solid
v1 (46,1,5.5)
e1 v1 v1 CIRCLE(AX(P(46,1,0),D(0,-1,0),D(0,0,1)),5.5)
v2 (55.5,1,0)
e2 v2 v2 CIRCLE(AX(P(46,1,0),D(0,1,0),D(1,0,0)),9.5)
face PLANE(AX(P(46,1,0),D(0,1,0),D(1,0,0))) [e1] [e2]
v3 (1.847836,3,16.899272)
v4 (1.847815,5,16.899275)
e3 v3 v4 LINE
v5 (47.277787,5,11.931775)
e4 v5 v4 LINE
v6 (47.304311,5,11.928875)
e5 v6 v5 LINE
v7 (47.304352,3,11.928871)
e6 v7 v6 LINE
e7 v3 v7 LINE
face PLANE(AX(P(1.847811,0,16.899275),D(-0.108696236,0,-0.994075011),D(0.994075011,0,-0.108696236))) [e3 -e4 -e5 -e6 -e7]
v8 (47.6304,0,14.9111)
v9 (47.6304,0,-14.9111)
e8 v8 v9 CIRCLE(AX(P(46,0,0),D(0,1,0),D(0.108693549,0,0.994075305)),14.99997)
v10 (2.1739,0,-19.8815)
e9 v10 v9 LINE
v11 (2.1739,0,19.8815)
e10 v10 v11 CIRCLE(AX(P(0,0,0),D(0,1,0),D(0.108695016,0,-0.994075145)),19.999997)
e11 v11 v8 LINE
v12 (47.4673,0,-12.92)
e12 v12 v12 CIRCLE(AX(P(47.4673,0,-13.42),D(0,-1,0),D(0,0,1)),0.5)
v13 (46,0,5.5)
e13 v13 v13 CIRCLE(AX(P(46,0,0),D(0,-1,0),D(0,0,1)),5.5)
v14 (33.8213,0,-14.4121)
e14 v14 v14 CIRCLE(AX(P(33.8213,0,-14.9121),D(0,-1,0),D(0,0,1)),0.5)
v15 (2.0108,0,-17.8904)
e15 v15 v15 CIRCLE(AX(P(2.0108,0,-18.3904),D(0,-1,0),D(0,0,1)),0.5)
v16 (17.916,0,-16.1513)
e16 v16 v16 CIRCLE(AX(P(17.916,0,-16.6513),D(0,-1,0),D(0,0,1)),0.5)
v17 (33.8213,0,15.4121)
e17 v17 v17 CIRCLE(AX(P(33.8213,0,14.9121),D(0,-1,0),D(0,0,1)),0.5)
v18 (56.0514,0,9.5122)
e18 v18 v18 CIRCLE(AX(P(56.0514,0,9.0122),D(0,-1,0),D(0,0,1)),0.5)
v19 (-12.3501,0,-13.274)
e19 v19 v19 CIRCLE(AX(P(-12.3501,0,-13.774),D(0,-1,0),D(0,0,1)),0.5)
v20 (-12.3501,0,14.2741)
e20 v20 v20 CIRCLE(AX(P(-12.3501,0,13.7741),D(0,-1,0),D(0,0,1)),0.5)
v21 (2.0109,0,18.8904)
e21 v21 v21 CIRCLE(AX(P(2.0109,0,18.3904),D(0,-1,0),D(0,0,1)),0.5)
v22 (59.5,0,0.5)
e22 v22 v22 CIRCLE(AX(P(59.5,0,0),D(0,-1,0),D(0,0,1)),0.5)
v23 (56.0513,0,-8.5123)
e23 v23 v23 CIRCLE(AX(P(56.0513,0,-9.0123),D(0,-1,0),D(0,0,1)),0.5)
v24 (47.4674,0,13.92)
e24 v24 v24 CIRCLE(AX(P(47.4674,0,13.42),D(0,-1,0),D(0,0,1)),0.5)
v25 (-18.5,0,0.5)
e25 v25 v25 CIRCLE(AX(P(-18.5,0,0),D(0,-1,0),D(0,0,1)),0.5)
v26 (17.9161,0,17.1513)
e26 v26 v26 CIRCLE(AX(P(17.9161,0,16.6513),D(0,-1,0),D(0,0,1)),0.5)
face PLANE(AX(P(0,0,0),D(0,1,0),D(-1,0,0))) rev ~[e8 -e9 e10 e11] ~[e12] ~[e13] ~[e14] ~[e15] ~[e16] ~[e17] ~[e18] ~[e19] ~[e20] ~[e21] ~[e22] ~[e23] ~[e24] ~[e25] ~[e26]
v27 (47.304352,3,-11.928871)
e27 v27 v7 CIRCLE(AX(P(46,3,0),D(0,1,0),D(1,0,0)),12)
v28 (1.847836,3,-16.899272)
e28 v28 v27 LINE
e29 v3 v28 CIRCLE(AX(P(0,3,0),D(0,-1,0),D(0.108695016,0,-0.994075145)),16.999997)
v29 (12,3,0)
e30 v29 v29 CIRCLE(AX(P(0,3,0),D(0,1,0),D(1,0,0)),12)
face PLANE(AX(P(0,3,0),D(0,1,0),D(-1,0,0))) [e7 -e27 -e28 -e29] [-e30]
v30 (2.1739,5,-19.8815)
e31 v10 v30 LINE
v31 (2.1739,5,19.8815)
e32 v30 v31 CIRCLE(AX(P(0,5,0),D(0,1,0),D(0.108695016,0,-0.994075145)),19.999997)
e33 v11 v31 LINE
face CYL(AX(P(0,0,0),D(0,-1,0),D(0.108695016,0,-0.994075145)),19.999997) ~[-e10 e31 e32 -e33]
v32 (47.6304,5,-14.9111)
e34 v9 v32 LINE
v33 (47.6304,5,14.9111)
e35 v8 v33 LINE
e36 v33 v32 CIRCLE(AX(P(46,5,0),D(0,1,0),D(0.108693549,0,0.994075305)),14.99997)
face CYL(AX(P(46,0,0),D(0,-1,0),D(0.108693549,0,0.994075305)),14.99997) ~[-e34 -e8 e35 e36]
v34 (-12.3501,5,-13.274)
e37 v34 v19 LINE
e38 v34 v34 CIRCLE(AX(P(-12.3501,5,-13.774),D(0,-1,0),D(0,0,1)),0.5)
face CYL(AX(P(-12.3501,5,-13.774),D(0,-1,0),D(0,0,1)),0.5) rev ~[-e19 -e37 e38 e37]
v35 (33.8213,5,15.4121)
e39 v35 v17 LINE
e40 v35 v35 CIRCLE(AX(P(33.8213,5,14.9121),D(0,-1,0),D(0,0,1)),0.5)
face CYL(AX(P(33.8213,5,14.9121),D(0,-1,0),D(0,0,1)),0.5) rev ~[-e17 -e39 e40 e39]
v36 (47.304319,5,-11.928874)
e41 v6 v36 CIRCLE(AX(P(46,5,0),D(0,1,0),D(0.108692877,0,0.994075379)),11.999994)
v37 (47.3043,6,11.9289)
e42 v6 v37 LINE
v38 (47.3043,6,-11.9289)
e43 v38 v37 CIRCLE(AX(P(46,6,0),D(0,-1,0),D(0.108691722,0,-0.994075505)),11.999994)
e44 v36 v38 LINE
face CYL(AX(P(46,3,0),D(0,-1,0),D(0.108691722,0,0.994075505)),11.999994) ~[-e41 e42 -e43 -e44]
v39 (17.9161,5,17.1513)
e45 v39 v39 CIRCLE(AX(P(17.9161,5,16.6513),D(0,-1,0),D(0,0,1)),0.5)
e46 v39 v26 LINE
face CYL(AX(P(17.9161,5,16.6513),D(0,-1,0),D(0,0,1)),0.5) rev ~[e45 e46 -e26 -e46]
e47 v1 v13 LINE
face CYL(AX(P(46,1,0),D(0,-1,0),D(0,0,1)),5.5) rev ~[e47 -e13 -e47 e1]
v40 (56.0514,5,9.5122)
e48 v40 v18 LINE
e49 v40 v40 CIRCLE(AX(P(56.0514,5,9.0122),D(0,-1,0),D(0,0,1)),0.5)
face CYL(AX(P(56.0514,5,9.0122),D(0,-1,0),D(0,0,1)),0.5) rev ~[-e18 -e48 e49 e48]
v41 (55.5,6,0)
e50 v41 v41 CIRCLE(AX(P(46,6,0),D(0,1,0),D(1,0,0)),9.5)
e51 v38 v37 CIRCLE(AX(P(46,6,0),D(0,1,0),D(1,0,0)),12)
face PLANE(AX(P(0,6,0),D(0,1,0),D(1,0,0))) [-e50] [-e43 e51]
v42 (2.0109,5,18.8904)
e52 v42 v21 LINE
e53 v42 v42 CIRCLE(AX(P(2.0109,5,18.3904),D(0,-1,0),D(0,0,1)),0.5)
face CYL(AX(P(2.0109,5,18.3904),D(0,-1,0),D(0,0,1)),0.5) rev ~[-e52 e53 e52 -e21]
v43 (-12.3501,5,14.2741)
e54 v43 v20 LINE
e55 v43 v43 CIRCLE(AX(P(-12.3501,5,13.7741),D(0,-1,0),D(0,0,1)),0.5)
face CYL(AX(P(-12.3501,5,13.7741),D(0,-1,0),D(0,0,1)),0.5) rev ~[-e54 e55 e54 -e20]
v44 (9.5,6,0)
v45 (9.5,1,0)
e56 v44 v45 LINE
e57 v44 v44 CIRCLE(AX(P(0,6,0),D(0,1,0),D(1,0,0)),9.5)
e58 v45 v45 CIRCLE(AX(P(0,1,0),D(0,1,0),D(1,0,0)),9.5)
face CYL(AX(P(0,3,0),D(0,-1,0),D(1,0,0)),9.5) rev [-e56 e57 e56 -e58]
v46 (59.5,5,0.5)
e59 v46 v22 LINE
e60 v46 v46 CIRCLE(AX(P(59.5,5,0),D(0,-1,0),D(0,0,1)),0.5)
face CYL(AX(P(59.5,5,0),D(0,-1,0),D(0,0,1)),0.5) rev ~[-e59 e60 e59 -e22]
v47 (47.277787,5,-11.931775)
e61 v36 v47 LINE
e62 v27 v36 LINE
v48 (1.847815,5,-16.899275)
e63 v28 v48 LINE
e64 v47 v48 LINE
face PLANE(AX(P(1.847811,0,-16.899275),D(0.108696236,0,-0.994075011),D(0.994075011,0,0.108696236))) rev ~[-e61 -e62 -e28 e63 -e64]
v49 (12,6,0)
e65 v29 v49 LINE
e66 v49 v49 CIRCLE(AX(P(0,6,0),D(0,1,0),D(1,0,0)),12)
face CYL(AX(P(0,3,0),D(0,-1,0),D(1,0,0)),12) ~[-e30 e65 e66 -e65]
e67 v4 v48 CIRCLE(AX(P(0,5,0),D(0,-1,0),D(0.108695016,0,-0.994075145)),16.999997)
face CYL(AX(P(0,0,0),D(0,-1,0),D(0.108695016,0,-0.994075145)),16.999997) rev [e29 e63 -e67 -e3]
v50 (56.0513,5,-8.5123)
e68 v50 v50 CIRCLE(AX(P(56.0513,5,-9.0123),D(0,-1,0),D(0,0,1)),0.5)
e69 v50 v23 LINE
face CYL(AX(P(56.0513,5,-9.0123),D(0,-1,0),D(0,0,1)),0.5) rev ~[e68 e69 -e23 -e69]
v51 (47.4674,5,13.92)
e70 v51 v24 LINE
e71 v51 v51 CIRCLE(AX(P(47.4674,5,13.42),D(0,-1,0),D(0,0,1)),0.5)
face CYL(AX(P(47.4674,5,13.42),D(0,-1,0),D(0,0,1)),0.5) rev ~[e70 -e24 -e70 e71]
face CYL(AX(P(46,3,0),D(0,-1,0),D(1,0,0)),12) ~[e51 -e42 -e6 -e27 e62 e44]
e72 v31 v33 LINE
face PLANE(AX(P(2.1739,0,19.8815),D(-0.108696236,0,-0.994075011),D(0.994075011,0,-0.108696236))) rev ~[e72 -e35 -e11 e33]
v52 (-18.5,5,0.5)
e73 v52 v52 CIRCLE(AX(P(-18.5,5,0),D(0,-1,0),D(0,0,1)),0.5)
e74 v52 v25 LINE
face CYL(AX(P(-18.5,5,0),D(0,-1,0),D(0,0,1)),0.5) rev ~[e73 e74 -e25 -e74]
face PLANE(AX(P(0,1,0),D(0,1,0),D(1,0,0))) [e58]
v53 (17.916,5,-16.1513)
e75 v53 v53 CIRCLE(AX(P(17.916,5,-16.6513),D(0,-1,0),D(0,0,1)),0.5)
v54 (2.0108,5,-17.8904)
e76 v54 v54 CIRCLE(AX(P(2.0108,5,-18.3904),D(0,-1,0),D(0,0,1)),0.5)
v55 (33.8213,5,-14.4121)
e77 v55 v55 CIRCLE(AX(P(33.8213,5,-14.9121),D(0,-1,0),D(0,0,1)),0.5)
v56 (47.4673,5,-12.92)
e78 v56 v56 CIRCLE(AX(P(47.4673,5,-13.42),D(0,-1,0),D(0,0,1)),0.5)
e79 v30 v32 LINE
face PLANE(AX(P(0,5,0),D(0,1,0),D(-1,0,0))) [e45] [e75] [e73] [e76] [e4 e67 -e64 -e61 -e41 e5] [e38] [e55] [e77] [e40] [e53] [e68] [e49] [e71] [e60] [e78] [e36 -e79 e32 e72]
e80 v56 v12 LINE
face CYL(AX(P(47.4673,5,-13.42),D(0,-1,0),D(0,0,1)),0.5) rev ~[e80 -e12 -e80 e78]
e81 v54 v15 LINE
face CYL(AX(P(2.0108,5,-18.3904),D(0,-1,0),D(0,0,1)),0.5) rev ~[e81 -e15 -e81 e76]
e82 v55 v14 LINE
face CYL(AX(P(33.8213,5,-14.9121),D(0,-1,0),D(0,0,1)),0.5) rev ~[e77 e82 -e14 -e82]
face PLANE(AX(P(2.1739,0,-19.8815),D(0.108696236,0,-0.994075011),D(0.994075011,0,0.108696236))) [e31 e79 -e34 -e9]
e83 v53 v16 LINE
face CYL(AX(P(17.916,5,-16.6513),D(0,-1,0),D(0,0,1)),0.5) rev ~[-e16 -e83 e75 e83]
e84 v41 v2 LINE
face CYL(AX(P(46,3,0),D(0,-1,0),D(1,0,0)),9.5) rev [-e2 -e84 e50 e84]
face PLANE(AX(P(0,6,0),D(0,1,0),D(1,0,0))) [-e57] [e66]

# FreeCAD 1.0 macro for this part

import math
import FreeCAD as App
import Part
import Sketcher
Q = App.Units.Quantity


def faces_at(feature, points):
    """Names of the faces that lie closest to the given points."""
    faces = feature.Shape.Faces
    near = lambda p: min(range(len(faces)), key=lambda i: faces[i].distToShape(Part.Vertex(*p))[0])
    return sorted({f"Face{near(p) + 1}" for p in points})

doc = App.newDocument("Part")
params = doc.addObject("Spreadsheet::Sheet", "Params")
for row, (alias, value) in enumerate([
    ("sketch1_radius", "20 mm"),
    ("sketch1_radius2", "15 mm"),
    ("pad1_length", "5 mm"),
    ("thickness_wall", "3 mm"),
    ("sketch2_diameter", "24 mm"),
    ("sketch2_diameter2", "19 mm"),
    ("pad2_length", "3 mm"),
    ("sketch3_diameter", "19 mm"),
    ("sketch3_diameter2", "24 mm"),
    ("pad3_length", "3 mm"),
    ("sketch4_diameter", "19 mm"),
    ("pocket1_length", "2 mm"),
    ("sketch5_diameter", "19 mm"),
    ("pocket2_length", "2 mm"),
    ("sketch6_diameter", "11 mm"),
    ("hole_diameter", "11 mm"),
    ("sketch7_diameter", "1 mm"),
    ("hole2_diameter", "1 mm"),
], start=1):
    params.set(f"A{row}", alias)
    params.set(f"B{row}", "=" + value)
    params.setAlias(f"B{row}", alias)

body = doc.addObject("PartDesign::Body", "Body")

# Sketch on XZ plane
sketch1 = body.newObject("Sketcher::SketchObject", "Sketch")
sketch1.AttachmentSupport = (doc.getObject("XZ_Plane"), [""])
sketch1.MapMode = "FlatFace"
sketch1.addGeometry([
    Part.LineSegment(App.Vector(48, -15, 0), App.Vector(2, -20, 0)),
    Part.ArcOfCircle(Part.Circle(App.Vector(0, 0, 0), App.Vector(0, 0, 1), 20), math.radians(84), math.radians(276)),
    Part.LineSegment(App.Vector(2, 20, 0), App.Vector(48, 15, 0)),
    Part.ArcOfCircle(Part.Circle(App.Vector(46, 0, 0), App.Vector(0, 0, 1), 15), math.radians(-84), math.radians(84)),
], False)
sketch1.addConstraint([
    Sketcher.Constraint("Tangent", 0, 2, 1, 2),
    Sketcher.Constraint("Tangent", 1, 1, 2, 1),
    Sketcher.Constraint("Tangent", 2, 2, 3, 2),
    Sketcher.Constraint("Tangent", 3, 1, 0, 1),
    Sketcher.Constraint("Coincident", 1, 3, -1, 1),
    Sketcher.Constraint("PointOnObject", 3, 3, -1),
    Sketcher.Constraint("Radius", 1, Q("20 mm")),
    Sketcher.Constraint("Radius", 3, Q("15 mm")),
    Sketcher.Constraint("DistanceX", -1, 1, 3, 3, Q("46 mm")),
])
sketch1.setExpression("Constraints[6]", "Params.sketch1_radius")
sketch1.setExpression("Constraints[7]", "Params.sketch1_radius2")
pad1 = body.newObject("PartDesign::Pad", "Pad")
pad1.Profile = sketch1
pad1.setExpression("Length", "Params.pad1_length")
pad1.Reversed = True
doc.recompute()

thickness = body.newObject("PartDesign::Thickness", "Thickness")
thickness.Base = (pad1, faces_at(pad1, [(17.326, 5, -4.97)]))
thickness.setExpression("Value", "Params.thickness_wall")
thickness.Reversed = True
thickness.Join = "Intersection"

# Sketch on XZ plane
sketch2 = body.newObject("Sketcher::SketchObject", "Sketch001")
sketch2.AttachmentSupport = (doc.getObject("XZ_Plane"), [""])
sketch2.MapMode = "FlatFace"
sketch2.AttachmentOffset = App.Placement(App.Vector(0, 0, -3), App.Rotation())
sketch2.addGeometry([
    Part.Circle(App.Vector(0, 0, 0), App.Vector(0, 0, 1), 12),
    Part.Circle(App.Vector(0, 0, 0), App.Vector(0, 0, 1), 10),
], False)
sketch2.addConstraint([
    Sketcher.Constraint("Coincident", 0, 3, -1, 1),
    Sketcher.Constraint("Coincident", 1, 3, -1, 1),
    Sketcher.Constraint("Diameter", 0, Q("24 mm")),
    Sketcher.Constraint("Diameter", 1, Q("19 mm")),
])
sketch2.setExpression("Constraints[2]", "Params.sketch2_diameter")
sketch2.setExpression("Constraints[3]", "Params.sketch2_diameter2")
pad2 = body.newObject("PartDesign::Pad", "Pad001")
pad2.Profile = sketch2
pad2.setExpression("Length", "Params.pad2_length")
pad2.Reversed = True

# Sketch on XZ plane
sketch3 = body.newObject("Sketcher::SketchObject", "Sketch002")
sketch3.AttachmentSupport = (doc.getObject("XZ_Plane"), [""])
sketch3.MapMode = "FlatFace"
sketch3.AttachmentOffset = App.Placement(App.Vector(0, 0, -3), App.Rotation())
sketch3.addGeometry([
    Part.Circle(App.Vector(46, 0, 0), App.Vector(0, 0, 1), 12),
    Part.Circle(App.Vector(46, 0, 0), App.Vector(0, 0, 1), 10),
], False)
sketch3.addConstraint([
    Sketcher.Constraint("Coincident", 1, 3, 0, 3),
    Sketcher.Constraint("PointOnObject", 0, 3, -1),
    Sketcher.Constraint("Diameter", 1, Q("19 mm")),
    Sketcher.Constraint("Diameter", 0, Q("24 mm")),
    Sketcher.Constraint("DistanceX", -1, 1, 0, 3, Q("46 mm")),
])
sketch3.setExpression("Constraints[2]", "Params.sketch3_diameter")
sketch3.setExpression("Constraints[3]", "Params.sketch3_diameter2")
pad3 = body.newObject("PartDesign::Pad", "Pad002")
pad3.Profile = sketch3
pad3.setExpression("Length", "Params.pad3_length")
pad3.Reversed = True

# Sketch on XZ plane
sketch4 = body.newObject("Sketcher::SketchObject", "Sketch003")
sketch4.AttachmentSupport = (doc.getObject("XZ_Plane"), [""])
sketch4.MapMode = "FlatFace"
sketch4.AttachmentOffset = App.Placement(App.Vector(0, 0, -3), App.Rotation())
sketch4.addGeometry(Part.Circle(App.Vector(0, 0, 0), App.Vector(0, 0, 1), 10), False)
sketch4.addConstraint([
    Sketcher.Constraint("Coincident", 0, 3, -1, 1),
    Sketcher.Constraint("Diameter", 0, Q("19 mm")),
])
sketch4.setExpression("Constraints[1]", "Params.sketch4_diameter")
pocket1 = body.newObject("PartDesign::Pocket", "Pocket")
pocket1.Profile = sketch4
pocket1.setExpression("Length", "Params.pocket1_length")
pocket1.Reversed = True

# Sketch on XZ plane
sketch5 = body.newObject("Sketcher::SketchObject", "Sketch004")
sketch5.AttachmentSupport = (doc.getObject("XZ_Plane"), [""])
sketch5.MapMode = "FlatFace"
sketch5.AttachmentOffset = App.Placement(App.Vector(0, 0, -3), App.Rotation())
sketch5.addGeometry(Part.Circle(App.Vector(46, 0, 0), App.Vector(0, 0, 1), 10), False)
sketch5.addConstraint([
    Sketcher.Constraint("PointOnObject", 0, 3, -1),
    Sketcher.Constraint("Diameter", 0, Q("19 mm")),
    Sketcher.Constraint("DistanceX", -1, 1, 0, 3, Q("46 mm")),
])
sketch5.setExpression("Constraints[1]", "Params.sketch5_diameter")
pocket2 = body.newObject("PartDesign::Pocket", "Pocket001")
pocket2.Profile = sketch5
pocket2.setExpression("Length", "Params.pocket2_length")
pocket2.Reversed = True

# Sketch on XZ plane
sketch6 = body.newObject("Sketcher::SketchObject", "Sketch005")
sketch6.AttachmentSupport = (doc.getObject("XZ_Plane"), [""])
sketch6.MapMode = "FlatFace"
sketch6.AttachmentOffset = App.Placement(App.Vector(0, 0, -1), App.Rotation())
sketch6.addGeometry(Part.Circle(App.Vector(46, 0, 0), App.Vector(0, 0, 1), 6), False)
sketch6.addConstraint([
    Sketcher.Constraint("PointOnObject", 0, 3, -1),
    Sketcher.Constraint("Diameter", 0, Q("11 mm")),
    Sketcher.Constraint("DistanceX", -1, 1, 0, 3, Q("46 mm")),
])
sketch6.setExpression("Constraints[1]", "Params.sketch6_diameter")
doc.recompute()
hole = body.newObject("PartDesign::Hole", "Hole")
hole.Profile = sketch6
hole.ThreadType = "None"
hole.setExpression("Diameter", "Params.hole_diameter")
hole.DepthType = "ThroughAll"
hole.Reversed = True

# Sketch on XZ plane
sketch7 = body.newObject("Sketcher::SketchObject", "Sketch006")
sketch7.AttachmentSupport = (doc.getObject("XZ_Plane"), [""])
sketch7.MapMode = "FlatFace"
sketch7.AttachmentOffset = App.Placement(App.Vector(0, 0, -5), App.Rotation())
sketch7.addGeometry([
    Part.Circle(App.Vector(2, 18.4, 0), App.Vector(0, 0, 1), 0.5),  # 0
    Part.Circle(App.Vector(-12.4, 13.8, 0), App.Vector(0, 0, 1), 0.5),  # 1
    Part.Circle(App.Vector(-18.5, 0, 0), App.Vector(0, 0, 1), 0.5),  # 2
    Part.Circle(App.Vector(-12.4, -13.8, 0), App.Vector(0, 0, 1), 0.5),  # 3
    Part.Circle(App.Vector(2, -18.4, 0), App.Vector(0, 0, 1), 0.5),  # 4
    Part.Circle(App.Vector(17.9, -16.7, 0), App.Vector(0, 0, 1), 0.5),  # 5
    Part.Circle(App.Vector(33.8, -14.9, 0), App.Vector(0, 0, 1), 0.5),  # 6
    Part.Circle(App.Vector(47.5, -13.4, 0), App.Vector(0, 0, 1), 0.5),  # 7
    Part.Circle(App.Vector(56.1, -9, 0), App.Vector(0, 0, 1), 0.5),  # 8
    Part.Circle(App.Vector(59.5, 0, 0), App.Vector(0, 0, 1), 0.5),  # 9
    Part.Circle(App.Vector(56.1, 9, 0), App.Vector(0, 0, 1), 0.5),  # 10
    Part.Circle(App.Vector(47.5, 13.4, 0), App.Vector(0, 0, 1), 0.5),  # 11
    Part.Circle(App.Vector(33.8, 14.9, 0), App.Vector(0, 0, 1), 0.5),  # 12
    Part.Circle(App.Vector(17.9, 16.7, 0), App.Vector(0, 0, 1), 0.5),  # 13
], False)
sketch7.addConstraint([
    Sketcher.Constraint("Equal", 0, 1),
    Sketcher.Constraint("Equal", 1, 2),
    Sketcher.Constraint("Equal", 2, 3),
    Sketcher.Constraint("Equal", 3, 4),
    Sketcher.Constraint("Equal", 4, 5),
    Sketcher.Constraint("Equal", 5, 6),
    Sketcher.Constraint("Equal", 6, 7),
    Sketcher.Constraint("Equal", 7, 8),
    Sketcher.Constraint("Equal", 8, 9),
    Sketcher.Constraint("Equal", 9, 10),
    Sketcher.Constraint("Equal", 10, 11),
    Sketcher.Constraint("Equal", 11, 12),
    Sketcher.Constraint("Equal", 12, 13),
    Sketcher.Constraint("Symmetric", 1, 3, 3, 3, -1),
    Sketcher.Constraint("Symmetric", 0, 3, 4, 3, -1),
    Sketcher.Constraint("Symmetric", 8, 3, 10, 3, -1),
    Sketcher.Constraint("Symmetric", 7, 3, 11, 3, -1),
    Sketcher.Constraint("Symmetric", 6, 3, 12, 3, -1),
    Sketcher.Constraint("Symmetric", 5, 3, 13, 3, -1),
    Sketcher.Constraint("PointOnObject", 2, 3, -1),
    Sketcher.Constraint("PointOnObject", 9, 3, -1),
    Sketcher.Constraint("Diameter", 0, Q("1 mm")),
    Sketcher.Constraint("DistanceX", 2, 3, -1, 1, Q("18.5 mm")),
    Sketcher.Constraint("DistanceX", -1, 1, 9, 3, Q("59.5 mm")),
    Sketcher.Constraint("DistanceY", 10, 3, 12, 3, Q("5.9 mm")),
    Sketcher.Constraint("DistanceX", 1, 3, -1, 1, Q("12.35 mm")),
    Sketcher.Constraint("DistanceY", 7, 3, -1, 1, Q("13.42 mm")),
    Sketcher.Constraint("DistanceX", 6, 3, 8, 3, Q("22.23 mm")),
    Sketcher.Constraint("DistanceX", -1, 1, 0, 3, Q("2.011 mm")),
    Sketcher.Constraint("DistanceY", -1, 1, 1, 3, Q("13.774 mm")),
    Sketcher.Constraint("DistanceX", -1, 1, 5, 3, Q("17.916 mm")),
    Sketcher.Constraint("DistanceY", 6, 3, -1, 1, Q("14.912 mm")),
    Sketcher.Constraint("DistanceY", 4, 3, 5, 3, Q("1.739 mm")),
    Sketcher.Constraint("DistanceX", 6, 3, 7, 3, Q("13.646 mm")),
    Sketcher.Constraint("DistanceY", 5, 3, 8, 3, Q("7.639 mm")),
    Sketcher.Constraint("DistanceX", -1, 1, 6, 3, Q("33.8213 mm")),
])
sketch7.setExpression("Constraints[21]", "Params.sketch7_diameter")
doc.recompute()
hole2 = body.newObject("PartDesign::Hole", "Hole001")
hole2.Profile = sketch7
hole2.ThreadType = "None"
hole2.setExpression("Diameter", "Params.hole2_diameter")
hole2.DepthType = "ThroughAll"
hole2.Reversed = True

doc.recompute()
